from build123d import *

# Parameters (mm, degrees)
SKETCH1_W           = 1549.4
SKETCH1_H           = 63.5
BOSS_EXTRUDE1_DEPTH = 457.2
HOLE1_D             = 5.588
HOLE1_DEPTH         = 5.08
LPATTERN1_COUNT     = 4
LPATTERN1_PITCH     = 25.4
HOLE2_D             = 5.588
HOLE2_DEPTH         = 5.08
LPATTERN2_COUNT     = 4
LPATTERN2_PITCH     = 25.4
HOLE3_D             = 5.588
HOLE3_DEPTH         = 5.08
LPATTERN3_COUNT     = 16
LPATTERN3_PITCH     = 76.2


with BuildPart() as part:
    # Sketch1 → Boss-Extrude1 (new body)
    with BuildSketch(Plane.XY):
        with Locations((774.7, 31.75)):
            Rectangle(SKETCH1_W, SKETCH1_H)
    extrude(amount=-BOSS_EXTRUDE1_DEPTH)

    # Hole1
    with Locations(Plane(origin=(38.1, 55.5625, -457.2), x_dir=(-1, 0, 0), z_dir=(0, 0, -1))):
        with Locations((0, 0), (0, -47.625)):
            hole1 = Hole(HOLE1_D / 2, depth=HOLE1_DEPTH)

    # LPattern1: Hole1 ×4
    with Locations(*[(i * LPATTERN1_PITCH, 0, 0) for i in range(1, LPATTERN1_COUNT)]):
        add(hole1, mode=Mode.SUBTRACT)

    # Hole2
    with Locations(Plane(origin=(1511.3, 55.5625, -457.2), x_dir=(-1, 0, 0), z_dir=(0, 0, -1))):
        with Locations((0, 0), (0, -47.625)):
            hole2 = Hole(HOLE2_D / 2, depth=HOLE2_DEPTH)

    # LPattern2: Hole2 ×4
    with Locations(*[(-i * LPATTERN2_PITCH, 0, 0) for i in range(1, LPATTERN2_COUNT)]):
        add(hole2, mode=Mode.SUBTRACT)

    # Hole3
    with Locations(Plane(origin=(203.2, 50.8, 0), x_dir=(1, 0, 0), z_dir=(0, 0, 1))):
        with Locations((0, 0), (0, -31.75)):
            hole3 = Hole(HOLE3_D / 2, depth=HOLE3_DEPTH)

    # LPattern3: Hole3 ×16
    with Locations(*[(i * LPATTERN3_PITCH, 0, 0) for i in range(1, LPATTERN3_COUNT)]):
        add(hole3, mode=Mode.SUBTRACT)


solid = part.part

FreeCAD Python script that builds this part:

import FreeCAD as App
import Part
import Sketcher
Q = App.Units.Quantity


def add_polygon(sketch, points):
    """Adds a closed chain of lines whose ends are joined by coincident constraints."""
    first, n = sketch.GeometryCount, len(points)
    for a, b in zip(points, points[1:] + points[:1]):
        sketch.addGeometry(Part.LineSegment(App.Vector(*a, 0), App.Vector(*b, 0)), False)
    for i in range(n):
        sketch.addConstraint(Sketcher.Constraint("Coincident", first + i, 2, first + (i + 1) % n, 1))

doc = App.newDocument("Part")
body = doc.addObject("PartDesign::Body", "Body")

# Sketch on XY plane
sketch1 = body.newObject("Sketcher::SketchObject", "Sketch")
sketch1.AttachmentSupport = (doc.getObject("XY_Plane"), [""])
sketch1.MapMode = "FlatFace"
add_polygon(sketch1, [(0, 64), (0, 0), (1549, 0), (1549, 64)])  # lines 0-3
sketch1.addConstraint([
    Sketcher.Constraint("Vertical", 0),
    Sketcher.Constraint("Horizontal", 1),
    Sketcher.Constraint("Vertical", 2),
    Sketcher.Constraint("Horizontal", 3),
    Sketcher.Constraint("Coincident", 0, 2, -1, 1),
    Sketcher.Constraint("DistanceX", 1, 1, 1, 2, Q("61 in")),
    Sketcher.Constraint("DistanceY", 0, 2, 0, 1, Q("2.5 in")),
])
pad1 = body.newObject("PartDesign::Pad", "Pad")
pad1.Profile = sketch1
pad1.Length = Q("18 in")
pad1.Reversed = True

# Sketch on XY plane
sketch2 = body.newObject("Sketcher::SketchObject", "Sketch001")
sketch2.AttachmentSupport = (doc.getObject("XY_Plane"), [""])
sketch2.MapMode = "FlatFace"
sketch2.AttachmentOffset = App.Placement(App.Vector(0, 0, -18 * 25.4), App.Rotation())
sketch2.addGeometry([
    Part.Circle(App.Vector(38.1, 55.6, 0), App.Vector(0, 0, 1), 2.8),
    Part.Circle(App.Vector(38.1, 7.9, 0), App.Vector(0, 0, 1), 2.8),
], False)
sketch2.addConstraint([
    Sketcher.Constraint("Equal", 0, 1),
    Sketcher.Constraint("Vertical", 0, 3, 1, 3),
    Sketcher.Constraint("Diameter", 0, Q("0.22 in")),
    Sketcher.Constraint("DistanceX", -1, 1, 0, 3, Q("1.5 in")),
    Sketcher.Constraint("DistanceY", -1, 1, 0, 3, Q("2.1875 in")),
    Sketcher.Constraint("DistanceY", -1, 1, 1, 3, Q("0.3125 in")),
])
doc.recompute()
hole = body.newObject("PartDesign::Hole", "Hole")
hole.Profile = sketch2
hole.ThreadType = "None"
hole.Diameter = Q("0.22 in")
hole.DepthType = "Dimension"
hole.Depth = Q("0.2 in")
hole.DrillPoint = "Flat"
hole.Reversed = True
doc.recompute()

linearpattern = body.newObject("PartDesign::LinearPattern", "LinearPattern")
linearpattern.Originals = [hole]
linearpattern.Direction = (doc.getObject("X_Axis"), [""])
linearpattern.Mode = "offset"
linearpattern.Offset = Q("1 in")
linearpattern.Occurrences = 4
body.Tip = linearpattern

# Sketch on XY plane
sketch3 = body.newObject("Sketcher::SketchObject", "Sketch002")
sketch3.AttachmentSupport = (doc.getObject("XY_Plane"), [""])
sketch3.MapMode = "FlatFace"
sketch3.AttachmentOffset = App.Placement(App.Vector(0, 0, -18 * 25.4), App.Rotation())
sketch3.addGeometry([
    Part.Circle(App.Vector(1511.3, 55.6, 0), App.Vector(0, 0, 1), 2.8),
    Part.Circle(App.Vector(1511.3, 7.9, 0), App.Vector(0, 0, 1), 2.8),
], False)
sketch3.addConstraint([
    Sketcher.Constraint("Equal", 0, 1),
    Sketcher.Constraint("Vertical", 0, 3, 1, 3),
    Sketcher.Constraint("Diameter", 0, Q("0.22 in")),
    Sketcher.Constraint("DistanceX", -1, 1, 0, 3, Q("59.5 in")),
    Sketcher.Constraint("DistanceY", -1, 1, 0, 3, Q("2.1875 in")),
    Sketcher.Constraint("DistanceY", -1, 1, 1, 3, Q("0.3125 in")),
])
doc.recompute()
hole2 = body.newObject("PartDesign::Hole", "Hole001")
hole2.Profile = sketch3
hole2.ThreadType = "None"
hole2.Diameter = Q("0.22 in")
hole2.DepthType = "Dimension"
hole2.Depth = Q("0.2 in")
hole2.DrillPoint = "Flat"
hole2.Reversed = True
doc.recompute()

linearpattern2 = body.newObject("PartDesign::LinearPattern", "LinearPattern001")
linearpattern2.Originals = [hole2]
linearpattern2.Direction = (doc.getObject("X_Axis"), [""])
linearpattern2.Mode = "offset"
linearpattern2.Offset = Q("1 in")
linearpattern2.Occurrences = 4
linearpattern2.Reversed = True
body.Tip = linearpattern2

# Sketch on XY plane
sketch4 = body.newObject("Sketcher::SketchObject", "Sketch003")
sketch4.AttachmentSupport = (doc.getObject("XY_Plane"), [""])
sketch4.MapMode = "FlatFace"
sketch4.addGeometry([
    Part.Circle(App.Vector(203.2, 50.8, 0), App.Vector(0, 0, 1), 2.8),
    Part.Circle(App.Vector(203.2, 19.1, 0), App.Vector(0, 0, 1), 2.8),
], False)
sketch4.addConstraint([
    Sketcher.Constraint("Equal", 0, 1),
    Sketcher.Constraint("Vertical", 0, 3, 1, 3),
    Sketcher.Constraint("Diameter", 0, Q("0.22 in")),
    Sketcher.Constraint("DistanceX", -1, 1, 0, 3, Q("8 in")),
    Sketcher.Constraint("DistanceY", -1, 1, 0, 3, Q("2 in")),
    Sketcher.Constraint("DistanceY", -1, 1, 1, 3, Q("0.75 in")),
])
doc.recompute()
hole3 = body.newObject("PartDesign::Hole", "Hole002")
hole3.Profile = sketch4
hole3.ThreadType = "None"
hole3.Diameter = Q("0.22 in")
hole3.DepthType = "Dimension"
hole3.Depth = Q("0.2 in")
hole3.DrillPoint = "Flat"
doc.recompute()

linearpattern3 = body.newObject("PartDesign::LinearPattern", "LinearPattern002")
linearpattern3.Originals = [hole3]
linearpattern3.Direction = (doc.getObject("X_Axis"), [""])
linearpattern3.Mode = "offset"
linearpattern3.Offset = Q("3 in")
linearpattern3.Occurrences = 16
body.Tip = linearpattern3

doc.recompute()
